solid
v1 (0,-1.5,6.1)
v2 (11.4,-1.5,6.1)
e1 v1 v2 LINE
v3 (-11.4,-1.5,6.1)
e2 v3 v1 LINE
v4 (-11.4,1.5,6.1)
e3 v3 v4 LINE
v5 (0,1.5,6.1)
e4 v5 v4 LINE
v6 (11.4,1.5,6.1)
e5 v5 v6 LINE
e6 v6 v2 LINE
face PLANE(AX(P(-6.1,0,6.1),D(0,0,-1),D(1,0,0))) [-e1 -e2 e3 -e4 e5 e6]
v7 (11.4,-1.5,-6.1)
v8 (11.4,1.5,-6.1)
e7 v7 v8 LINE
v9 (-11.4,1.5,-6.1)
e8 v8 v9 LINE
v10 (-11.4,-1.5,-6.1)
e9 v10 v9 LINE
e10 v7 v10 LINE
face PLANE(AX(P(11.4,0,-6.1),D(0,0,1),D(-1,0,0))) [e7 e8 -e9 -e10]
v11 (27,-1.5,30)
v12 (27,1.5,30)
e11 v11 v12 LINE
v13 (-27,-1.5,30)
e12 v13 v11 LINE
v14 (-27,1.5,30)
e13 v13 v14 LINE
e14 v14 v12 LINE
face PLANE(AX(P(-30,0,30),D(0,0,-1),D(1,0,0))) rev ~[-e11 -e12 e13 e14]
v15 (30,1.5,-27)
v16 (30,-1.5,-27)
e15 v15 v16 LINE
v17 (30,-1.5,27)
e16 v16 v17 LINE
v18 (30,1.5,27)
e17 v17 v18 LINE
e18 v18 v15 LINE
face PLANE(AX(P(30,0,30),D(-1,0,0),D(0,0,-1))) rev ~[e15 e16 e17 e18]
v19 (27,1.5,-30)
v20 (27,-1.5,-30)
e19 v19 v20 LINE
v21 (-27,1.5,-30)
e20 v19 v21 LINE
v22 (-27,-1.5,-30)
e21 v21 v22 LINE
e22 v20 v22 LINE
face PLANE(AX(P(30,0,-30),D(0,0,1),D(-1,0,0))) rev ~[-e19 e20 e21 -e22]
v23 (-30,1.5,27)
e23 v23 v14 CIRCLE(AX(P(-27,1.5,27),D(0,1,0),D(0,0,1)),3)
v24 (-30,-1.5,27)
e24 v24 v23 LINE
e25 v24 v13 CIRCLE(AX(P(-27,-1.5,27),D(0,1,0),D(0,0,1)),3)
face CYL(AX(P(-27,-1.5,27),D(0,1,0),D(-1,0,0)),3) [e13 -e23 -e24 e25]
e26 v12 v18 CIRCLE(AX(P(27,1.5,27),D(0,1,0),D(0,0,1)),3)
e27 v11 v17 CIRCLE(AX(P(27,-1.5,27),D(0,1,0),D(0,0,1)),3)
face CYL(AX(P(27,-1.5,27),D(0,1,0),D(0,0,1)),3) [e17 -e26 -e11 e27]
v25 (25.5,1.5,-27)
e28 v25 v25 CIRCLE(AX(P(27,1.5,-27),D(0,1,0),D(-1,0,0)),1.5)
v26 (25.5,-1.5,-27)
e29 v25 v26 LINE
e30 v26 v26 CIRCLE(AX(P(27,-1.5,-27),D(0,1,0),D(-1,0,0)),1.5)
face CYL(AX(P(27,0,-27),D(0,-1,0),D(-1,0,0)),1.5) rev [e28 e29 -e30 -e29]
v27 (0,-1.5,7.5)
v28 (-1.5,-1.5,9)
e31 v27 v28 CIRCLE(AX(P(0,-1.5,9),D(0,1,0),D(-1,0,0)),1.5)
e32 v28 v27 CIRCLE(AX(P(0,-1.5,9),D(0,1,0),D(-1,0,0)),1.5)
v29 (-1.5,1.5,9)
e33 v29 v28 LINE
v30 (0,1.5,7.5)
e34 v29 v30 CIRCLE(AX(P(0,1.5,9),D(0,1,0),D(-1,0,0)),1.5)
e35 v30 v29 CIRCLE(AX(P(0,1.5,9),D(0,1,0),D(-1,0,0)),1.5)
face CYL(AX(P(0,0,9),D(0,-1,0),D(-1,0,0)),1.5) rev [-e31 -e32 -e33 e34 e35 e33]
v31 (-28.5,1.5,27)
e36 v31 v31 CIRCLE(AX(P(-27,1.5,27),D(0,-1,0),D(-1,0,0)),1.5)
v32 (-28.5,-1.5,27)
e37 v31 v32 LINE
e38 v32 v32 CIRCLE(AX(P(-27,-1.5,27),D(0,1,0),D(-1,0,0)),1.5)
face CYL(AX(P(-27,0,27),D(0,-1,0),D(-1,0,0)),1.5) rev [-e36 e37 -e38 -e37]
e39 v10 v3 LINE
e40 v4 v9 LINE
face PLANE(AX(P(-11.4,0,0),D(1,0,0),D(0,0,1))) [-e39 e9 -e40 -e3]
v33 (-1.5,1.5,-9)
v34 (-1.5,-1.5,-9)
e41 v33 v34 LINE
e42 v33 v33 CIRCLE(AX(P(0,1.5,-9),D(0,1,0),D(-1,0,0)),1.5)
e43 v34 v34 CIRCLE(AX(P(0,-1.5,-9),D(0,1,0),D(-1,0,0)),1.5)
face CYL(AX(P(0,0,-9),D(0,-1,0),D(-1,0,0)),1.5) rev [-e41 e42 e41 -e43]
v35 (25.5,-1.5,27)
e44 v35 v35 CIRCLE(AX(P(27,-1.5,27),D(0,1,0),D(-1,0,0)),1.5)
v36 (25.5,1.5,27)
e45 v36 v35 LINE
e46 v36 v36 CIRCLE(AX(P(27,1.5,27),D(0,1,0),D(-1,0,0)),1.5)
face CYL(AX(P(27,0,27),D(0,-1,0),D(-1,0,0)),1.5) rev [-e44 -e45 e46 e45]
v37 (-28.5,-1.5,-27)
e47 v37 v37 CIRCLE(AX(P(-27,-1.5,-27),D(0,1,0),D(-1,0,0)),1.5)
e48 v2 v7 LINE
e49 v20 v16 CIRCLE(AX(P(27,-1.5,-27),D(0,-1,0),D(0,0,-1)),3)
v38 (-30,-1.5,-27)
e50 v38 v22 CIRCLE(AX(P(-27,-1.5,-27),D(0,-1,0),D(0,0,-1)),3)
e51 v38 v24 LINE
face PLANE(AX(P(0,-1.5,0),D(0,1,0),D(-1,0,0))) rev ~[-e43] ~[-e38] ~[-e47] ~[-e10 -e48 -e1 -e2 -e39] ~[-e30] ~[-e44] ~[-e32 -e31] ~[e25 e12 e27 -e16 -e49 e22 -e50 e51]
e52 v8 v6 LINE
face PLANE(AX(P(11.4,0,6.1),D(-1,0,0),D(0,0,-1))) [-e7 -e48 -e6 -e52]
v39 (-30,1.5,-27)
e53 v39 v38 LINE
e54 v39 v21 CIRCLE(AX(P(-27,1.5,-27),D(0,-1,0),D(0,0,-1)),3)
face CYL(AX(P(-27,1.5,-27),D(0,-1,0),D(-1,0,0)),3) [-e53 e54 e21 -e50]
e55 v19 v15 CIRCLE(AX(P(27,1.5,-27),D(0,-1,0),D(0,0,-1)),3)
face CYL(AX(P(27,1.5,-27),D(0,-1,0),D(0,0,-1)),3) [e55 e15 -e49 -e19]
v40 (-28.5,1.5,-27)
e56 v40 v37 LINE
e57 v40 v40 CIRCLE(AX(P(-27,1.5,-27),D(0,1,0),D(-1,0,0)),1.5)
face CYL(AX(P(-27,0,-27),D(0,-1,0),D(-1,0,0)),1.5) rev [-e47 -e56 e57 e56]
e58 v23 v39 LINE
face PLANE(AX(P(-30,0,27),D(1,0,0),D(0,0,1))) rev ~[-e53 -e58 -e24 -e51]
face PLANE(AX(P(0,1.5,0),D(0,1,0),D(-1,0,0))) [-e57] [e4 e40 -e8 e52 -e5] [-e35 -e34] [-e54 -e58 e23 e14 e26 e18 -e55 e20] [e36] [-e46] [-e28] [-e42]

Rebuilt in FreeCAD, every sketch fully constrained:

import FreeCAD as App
import Part
import Sketcher
from FreeCAD import Vector
Q = App.Units.Quantity


def edges_at(feature, points):
    """Names of the edges that pass closest to the given points."""
    edges = feature.Shape.Edges
    near = lambda p: min(range(len(edges)), key=lambda i: edges[i].distToShape(Part.Vertex(*p))[0])
    return sorted({f"Edge{near(p) + 1}" for p in points})


def add_polygon(sketch, points):
    """Adds a closed chain of lines whose ends are joined by coincident constraints."""
    first, n = sketch.GeometryCount, len(points)
    for a, b in zip(points, points[1:] + points[:1]):
        sketch.addGeometry(Part.LineSegment(App.Vector(*a, 0), App.Vector(*b, 0)), False)
    for i in range(n):
        sketch.addConstraint(Sketcher.Constraint("Coincident", first + i, 2, first + (i + 1) % n, 1))

doc = App.newDocument("Part")
body = doc.addObject("PartDesign::Body", "Body")

sketch1 = doc.addObject("Sketcher::SketchObject", "Sketch")
body.addObject(sketch1)
sketch1.AttachmentSupport = (doc.XZ_Plane, [""])
sketch1.MapMode = "FlatFace"
add_polygon(sketch1, [(-30, 30), (30, 30), (30, -30), (-30, -30)])
sketch1.addGeometry(Part.Circle(Vector(-27, 27, 0), Vector(0, 0, 1), 1.5), False)
add_polygon(sketch1, [(0, 6.1), (-11.4, 6.1), (-11.4, -6.1), (11.4, -6.1), (11.4, 6.1)])
sketch1.addGeometry(Part.Circle(Vector(27, 27, 0), Vector(0, 0, 1), 1.5), False)
sketch1.addGeometry(Part.Circle(Vector(0, 9, 0), Vector(0, 0, 1), 1.5), False)
sketch1.addGeometry(Part.Circle(Vector(0, -9, 0), Vector(0, 0, 1), 1.5), False)
sketch1.addGeometry(Part.Circle(Vector(-27, -27, 0), Vector(0, 0, 1), 1.5), False)
sketch1.addGeometry(Part.Circle(Vector(27, -27, 0), Vector(0, 0, 1), 1.5), False)
sketch1.addConstraint([
    Sketcher.Constraint("Horizontal", 0),
    Sketcher.Constraint("Vertical", 1),
    Sketcher.Constraint("Horizontal", 2),
    Sketcher.Constraint("Vertical", 3),
    Sketcher.Constraint("Horizontal", 5),
    Sketcher.Constraint("Vertical", 6),
    Sketcher.Constraint("Horizontal", 7),
    Sketcher.Constraint("Vertical", 8),
    Sketcher.Constraint("Horizontal", 9),
    Sketcher.Constraint("Equal", 4, 10),
    Sketcher.Constraint("Equal", 10, 11),
    Sketcher.Constraint("Equal", 11, 12),
    Sketcher.Constraint("Equal", 12, 13),
    Sketcher.Constraint("Equal", 13, 14),
    Sketcher.Constraint("Symmetric", 11, 3, 12, 3, -1, 1),
    Sketcher.Constraint("Symmetric", 10, 3, 13, 3, -1, 1),
    Sketcher.Constraint("Symmetric", 4, 3, 14, 3, -1, 1),
    Sketcher.Constraint("Symmetric", 0, 2, 2, 2, -1, 1),
    Sketcher.Constraint("Symmetric", 5, 2, 7, 2, -1, 1),
    Sketcher.Constraint("Symmetric", 4, 3, 10, 3, -2),
    Sketcher.Constraint("PointOnObject", 11, 3, -2),
    Sketcher.Constraint("PointOnObject", 9, 2, -2),
    Sketcher.Constraint("Equal", 2, 1),
    Sketcher.Constraint("Diameter", 4, Q("3 mm")),
    Sketcher.Constraint("DistanceX", 0, 1, 0, 2, Q("60 mm")),
    Sketcher.Constraint("DistanceX", 5, 2, 5, 1, Q("11.4 mm")),
    Sketcher.Constraint("DistanceY", 6, 2, 6, 1, Q("12.2 mm")),
    Sketcher.Constraint("DistanceX", 10, 3, 0, 2, Q("3 mm")),
    Sketcher.Constraint("DistanceY", 10, 3, 0, 2, Q("3 mm")),
    Sketcher.Constraint("DistanceY", 5, 2, 11, 3, Q("2.9 mm")),
])
pad1 = doc.addObject("PartDesign::Pad", "Pad")
body.addObject(pad1)
pad1.Profile = sketch1
pad1.Length = 3
pad1.Midplane = True
doc.recompute()

fillet = doc.addObject("PartDesign::Fillet", "Fillet")
body.addObject(fillet)
fillet.Base = (pad1, edges_at(pad1, [
    (30, 0, 30),
    (-30, 0, 30),
    (-30, 0, -30),
    (30, 0, -30),
]))
fillet.Radius = 3

doc.recompute()
